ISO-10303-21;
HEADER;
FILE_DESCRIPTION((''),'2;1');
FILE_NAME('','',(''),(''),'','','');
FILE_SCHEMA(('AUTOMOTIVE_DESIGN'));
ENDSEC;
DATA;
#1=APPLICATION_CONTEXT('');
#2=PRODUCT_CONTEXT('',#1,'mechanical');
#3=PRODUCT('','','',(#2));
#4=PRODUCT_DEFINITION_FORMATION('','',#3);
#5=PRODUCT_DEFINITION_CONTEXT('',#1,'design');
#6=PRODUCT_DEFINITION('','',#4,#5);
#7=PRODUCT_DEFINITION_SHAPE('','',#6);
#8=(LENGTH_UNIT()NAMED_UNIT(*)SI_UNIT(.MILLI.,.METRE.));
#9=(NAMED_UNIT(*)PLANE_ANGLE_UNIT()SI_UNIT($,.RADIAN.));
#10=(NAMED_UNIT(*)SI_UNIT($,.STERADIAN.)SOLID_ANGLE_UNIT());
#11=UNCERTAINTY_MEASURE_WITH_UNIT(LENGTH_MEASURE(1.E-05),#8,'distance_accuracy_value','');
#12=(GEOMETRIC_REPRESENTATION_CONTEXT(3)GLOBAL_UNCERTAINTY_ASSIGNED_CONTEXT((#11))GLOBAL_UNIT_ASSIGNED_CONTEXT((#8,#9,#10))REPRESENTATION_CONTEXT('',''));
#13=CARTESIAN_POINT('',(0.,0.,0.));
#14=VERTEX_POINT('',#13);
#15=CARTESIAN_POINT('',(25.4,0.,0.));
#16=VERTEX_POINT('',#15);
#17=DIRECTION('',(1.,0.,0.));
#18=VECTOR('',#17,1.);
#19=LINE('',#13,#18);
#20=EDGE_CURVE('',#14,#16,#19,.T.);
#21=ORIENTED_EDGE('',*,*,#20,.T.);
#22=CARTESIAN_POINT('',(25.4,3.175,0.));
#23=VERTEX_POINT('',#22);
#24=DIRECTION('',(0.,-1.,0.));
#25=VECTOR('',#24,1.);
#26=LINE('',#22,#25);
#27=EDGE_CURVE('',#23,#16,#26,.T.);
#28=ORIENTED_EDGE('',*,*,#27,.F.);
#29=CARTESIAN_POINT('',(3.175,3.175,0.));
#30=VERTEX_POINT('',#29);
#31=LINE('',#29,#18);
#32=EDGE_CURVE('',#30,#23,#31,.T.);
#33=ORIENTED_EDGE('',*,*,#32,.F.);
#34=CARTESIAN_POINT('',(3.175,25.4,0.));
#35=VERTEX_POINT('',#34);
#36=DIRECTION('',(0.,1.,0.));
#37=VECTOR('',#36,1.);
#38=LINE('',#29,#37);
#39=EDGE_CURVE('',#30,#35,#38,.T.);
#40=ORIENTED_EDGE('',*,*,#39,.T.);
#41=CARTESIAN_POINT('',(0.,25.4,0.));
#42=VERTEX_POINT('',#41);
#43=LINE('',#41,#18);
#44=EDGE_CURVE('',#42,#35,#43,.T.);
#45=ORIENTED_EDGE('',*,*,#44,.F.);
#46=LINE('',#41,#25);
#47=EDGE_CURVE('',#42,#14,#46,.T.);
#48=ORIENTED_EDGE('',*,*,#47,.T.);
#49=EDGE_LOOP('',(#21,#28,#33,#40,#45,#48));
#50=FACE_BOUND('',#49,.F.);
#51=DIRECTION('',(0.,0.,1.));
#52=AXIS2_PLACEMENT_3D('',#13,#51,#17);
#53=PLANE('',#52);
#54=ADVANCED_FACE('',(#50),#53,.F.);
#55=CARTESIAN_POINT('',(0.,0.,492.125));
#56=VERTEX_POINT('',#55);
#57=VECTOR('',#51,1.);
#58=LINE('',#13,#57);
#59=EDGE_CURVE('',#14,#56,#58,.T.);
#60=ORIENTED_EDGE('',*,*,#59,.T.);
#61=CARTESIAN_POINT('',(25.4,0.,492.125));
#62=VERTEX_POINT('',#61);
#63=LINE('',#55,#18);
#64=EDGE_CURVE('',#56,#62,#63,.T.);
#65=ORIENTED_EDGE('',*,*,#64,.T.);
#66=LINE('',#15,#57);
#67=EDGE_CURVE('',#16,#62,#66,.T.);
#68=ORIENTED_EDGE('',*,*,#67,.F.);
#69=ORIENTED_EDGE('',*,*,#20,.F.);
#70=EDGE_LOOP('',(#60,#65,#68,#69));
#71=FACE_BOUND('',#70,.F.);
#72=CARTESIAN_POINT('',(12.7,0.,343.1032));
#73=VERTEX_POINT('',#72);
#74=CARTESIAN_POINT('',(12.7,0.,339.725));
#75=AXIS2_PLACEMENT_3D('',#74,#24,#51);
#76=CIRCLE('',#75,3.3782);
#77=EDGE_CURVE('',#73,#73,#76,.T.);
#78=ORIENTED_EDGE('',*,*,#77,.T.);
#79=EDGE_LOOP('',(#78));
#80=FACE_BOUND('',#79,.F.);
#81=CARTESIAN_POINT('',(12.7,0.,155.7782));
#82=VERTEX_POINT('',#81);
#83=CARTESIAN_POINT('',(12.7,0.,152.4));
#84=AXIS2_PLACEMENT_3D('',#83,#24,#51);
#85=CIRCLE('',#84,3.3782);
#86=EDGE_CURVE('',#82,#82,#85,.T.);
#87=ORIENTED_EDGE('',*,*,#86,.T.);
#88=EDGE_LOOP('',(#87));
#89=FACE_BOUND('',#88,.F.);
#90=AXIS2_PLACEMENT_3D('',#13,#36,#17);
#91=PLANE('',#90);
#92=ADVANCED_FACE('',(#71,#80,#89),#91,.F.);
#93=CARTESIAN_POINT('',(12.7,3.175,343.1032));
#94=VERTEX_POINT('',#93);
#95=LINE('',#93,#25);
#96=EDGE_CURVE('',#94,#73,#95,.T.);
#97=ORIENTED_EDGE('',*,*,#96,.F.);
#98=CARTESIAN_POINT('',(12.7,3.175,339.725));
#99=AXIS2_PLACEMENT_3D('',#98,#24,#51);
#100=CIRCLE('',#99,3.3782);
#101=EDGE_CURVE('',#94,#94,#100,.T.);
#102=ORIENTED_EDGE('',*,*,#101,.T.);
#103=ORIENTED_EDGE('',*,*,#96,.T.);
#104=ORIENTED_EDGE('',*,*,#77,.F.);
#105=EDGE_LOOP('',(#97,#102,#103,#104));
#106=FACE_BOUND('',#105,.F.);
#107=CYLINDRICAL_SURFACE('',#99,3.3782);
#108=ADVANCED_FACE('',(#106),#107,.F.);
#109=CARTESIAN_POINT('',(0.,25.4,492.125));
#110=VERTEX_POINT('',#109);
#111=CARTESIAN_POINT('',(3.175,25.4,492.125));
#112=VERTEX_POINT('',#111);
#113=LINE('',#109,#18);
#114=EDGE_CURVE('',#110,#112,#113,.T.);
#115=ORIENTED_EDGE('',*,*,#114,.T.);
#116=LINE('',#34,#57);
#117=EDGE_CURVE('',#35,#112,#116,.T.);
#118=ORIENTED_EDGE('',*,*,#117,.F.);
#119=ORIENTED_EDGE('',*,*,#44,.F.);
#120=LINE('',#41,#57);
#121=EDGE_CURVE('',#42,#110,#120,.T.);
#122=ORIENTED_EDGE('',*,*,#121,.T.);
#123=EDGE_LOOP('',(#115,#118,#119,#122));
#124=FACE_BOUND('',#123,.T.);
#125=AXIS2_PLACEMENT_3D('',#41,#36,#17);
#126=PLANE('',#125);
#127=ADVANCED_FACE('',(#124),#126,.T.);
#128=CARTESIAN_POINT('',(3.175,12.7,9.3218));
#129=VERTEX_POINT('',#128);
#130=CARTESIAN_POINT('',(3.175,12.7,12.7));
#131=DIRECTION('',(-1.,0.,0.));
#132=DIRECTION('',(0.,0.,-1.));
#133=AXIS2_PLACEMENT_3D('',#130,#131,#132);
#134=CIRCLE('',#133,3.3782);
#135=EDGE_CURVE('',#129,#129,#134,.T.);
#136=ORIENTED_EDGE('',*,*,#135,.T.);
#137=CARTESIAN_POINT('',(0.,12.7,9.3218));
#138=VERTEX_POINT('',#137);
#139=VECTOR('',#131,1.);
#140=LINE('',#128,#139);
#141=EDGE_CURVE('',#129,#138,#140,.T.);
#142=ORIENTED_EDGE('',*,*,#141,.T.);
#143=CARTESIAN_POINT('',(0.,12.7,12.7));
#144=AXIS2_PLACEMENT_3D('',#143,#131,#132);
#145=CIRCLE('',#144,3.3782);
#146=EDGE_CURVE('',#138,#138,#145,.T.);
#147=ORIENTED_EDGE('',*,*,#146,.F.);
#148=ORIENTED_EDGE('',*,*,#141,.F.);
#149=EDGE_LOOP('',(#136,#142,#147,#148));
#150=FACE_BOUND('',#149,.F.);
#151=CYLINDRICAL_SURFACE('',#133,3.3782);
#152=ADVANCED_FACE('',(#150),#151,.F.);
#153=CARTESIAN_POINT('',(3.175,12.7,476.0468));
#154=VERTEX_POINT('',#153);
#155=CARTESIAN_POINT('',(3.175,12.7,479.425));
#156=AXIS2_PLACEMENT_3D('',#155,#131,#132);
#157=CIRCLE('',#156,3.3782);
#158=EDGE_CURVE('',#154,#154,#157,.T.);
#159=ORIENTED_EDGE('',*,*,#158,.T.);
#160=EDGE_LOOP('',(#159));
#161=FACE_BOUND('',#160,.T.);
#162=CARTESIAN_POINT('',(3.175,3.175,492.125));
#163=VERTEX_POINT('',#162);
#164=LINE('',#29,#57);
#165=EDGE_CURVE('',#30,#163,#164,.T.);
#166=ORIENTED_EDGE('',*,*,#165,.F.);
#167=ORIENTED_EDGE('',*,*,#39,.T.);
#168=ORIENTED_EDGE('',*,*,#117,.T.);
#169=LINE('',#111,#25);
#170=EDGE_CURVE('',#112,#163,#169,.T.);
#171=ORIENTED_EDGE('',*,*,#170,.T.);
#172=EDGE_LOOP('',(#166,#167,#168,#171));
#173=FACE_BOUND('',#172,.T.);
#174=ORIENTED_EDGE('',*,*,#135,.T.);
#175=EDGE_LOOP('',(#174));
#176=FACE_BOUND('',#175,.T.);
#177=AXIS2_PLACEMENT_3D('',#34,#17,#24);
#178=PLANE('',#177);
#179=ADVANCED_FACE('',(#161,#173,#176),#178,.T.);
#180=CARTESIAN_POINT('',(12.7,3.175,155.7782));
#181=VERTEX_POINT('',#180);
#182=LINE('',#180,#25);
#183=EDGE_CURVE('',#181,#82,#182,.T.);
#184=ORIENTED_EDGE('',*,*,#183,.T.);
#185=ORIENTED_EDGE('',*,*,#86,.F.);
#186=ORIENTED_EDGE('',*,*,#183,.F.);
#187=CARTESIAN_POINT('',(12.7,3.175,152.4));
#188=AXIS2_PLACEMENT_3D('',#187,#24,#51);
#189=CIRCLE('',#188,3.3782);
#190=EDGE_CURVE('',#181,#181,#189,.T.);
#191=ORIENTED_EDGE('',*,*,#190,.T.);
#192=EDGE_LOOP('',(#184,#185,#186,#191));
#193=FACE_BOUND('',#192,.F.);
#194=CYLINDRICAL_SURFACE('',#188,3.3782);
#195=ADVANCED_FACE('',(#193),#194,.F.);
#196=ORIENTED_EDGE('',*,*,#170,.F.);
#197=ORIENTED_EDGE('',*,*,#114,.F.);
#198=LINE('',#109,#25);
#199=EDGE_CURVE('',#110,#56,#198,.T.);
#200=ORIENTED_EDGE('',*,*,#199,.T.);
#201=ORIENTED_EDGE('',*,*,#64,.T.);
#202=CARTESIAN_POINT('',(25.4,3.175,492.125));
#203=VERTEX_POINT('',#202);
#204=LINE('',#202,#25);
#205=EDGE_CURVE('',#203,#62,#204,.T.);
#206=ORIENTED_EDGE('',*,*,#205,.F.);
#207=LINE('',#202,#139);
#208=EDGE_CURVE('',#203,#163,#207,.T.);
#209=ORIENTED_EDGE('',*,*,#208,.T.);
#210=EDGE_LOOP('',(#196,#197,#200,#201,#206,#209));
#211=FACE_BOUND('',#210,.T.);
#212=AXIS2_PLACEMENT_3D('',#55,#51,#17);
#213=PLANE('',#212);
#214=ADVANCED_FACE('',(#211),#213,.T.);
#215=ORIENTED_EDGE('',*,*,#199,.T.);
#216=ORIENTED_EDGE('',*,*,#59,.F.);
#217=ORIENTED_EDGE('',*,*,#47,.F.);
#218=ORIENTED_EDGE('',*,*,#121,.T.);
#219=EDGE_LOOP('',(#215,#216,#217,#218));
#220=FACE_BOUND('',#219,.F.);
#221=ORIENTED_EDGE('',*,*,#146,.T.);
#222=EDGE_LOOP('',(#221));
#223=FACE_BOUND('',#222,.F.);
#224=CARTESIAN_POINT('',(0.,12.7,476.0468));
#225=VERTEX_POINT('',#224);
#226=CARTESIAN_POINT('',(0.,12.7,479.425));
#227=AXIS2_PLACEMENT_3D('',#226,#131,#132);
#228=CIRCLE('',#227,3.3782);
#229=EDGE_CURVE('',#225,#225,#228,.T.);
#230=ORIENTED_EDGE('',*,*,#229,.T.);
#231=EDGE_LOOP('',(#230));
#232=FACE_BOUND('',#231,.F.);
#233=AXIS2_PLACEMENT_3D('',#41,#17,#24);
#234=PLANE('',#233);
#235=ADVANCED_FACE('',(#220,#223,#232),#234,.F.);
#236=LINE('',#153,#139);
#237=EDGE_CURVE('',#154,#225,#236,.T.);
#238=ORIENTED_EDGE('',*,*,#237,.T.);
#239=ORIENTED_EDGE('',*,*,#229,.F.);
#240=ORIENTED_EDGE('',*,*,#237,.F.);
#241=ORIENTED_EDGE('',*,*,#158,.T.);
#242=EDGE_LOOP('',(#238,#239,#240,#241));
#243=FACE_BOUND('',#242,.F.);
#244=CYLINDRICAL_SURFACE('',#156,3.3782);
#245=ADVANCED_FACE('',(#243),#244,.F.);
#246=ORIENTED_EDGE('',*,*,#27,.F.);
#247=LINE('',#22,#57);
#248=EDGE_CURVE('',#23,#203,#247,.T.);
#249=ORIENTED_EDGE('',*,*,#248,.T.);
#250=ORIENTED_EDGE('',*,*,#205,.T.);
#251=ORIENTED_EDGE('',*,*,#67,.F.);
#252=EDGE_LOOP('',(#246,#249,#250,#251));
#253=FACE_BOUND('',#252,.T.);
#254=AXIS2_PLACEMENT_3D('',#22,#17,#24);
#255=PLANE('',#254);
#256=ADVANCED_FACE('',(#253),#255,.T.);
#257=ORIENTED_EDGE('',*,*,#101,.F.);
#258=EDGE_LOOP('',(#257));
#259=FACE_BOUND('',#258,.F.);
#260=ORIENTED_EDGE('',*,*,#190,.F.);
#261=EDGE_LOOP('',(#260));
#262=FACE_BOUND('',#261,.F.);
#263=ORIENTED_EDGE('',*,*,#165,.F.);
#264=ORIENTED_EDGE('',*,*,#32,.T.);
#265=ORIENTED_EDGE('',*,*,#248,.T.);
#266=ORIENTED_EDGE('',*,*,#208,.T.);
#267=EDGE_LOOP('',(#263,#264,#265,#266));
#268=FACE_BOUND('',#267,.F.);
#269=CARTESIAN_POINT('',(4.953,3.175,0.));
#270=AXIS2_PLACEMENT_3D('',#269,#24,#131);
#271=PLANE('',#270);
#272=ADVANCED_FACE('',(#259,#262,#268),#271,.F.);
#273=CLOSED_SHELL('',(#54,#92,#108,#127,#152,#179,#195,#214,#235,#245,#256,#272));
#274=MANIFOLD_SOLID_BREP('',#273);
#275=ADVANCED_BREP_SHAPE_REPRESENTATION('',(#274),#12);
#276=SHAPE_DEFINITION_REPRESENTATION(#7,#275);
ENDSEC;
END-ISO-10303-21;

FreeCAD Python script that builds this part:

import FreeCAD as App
import Part
import Sketcher

V = App.Vector
Q = App.Units.Quantity

doc = App.newDocument("Part")
body = doc.addObject("PartDesign::Body", "Body")

# Sketch on XY plane
sketch1 = body.newObject("Sketcher::SketchObject", "Sketch")
sketch1.AttachmentSupport = (doc.getObject("XY_Plane"), [""])
sketch1.MapMode = "FlatFace"
sketch1.addGeometry(Part.LineSegment(V(3.2, 25.4, 0), V(0, 25.4, 0)), False)
sketch1.addGeometry(Part.LineSegment(V(0, 25.4, 0), V(0, 0, 0)), False)
sketch1.addGeometry(Part.LineSegment(V(0, 0, 0), V(25.4, 0, 0)), False)
sketch1.addGeometry(Part.LineSegment(V(25.4, 0, 0), V(25.4, 3.2, 0)), False)
sketch1.addGeometry(Part.LineSegment(V(25.4, 3.2, 0), V(3.2, 3.2, 0)), False)
sketch1.addGeometry(Part.LineSegment(V(3.2, 3.2, 0), V(3.2, 25.4, 0)), False)
sketch1.addConstraint(Sketcher.Constraint("Coincident", 0, 2, 1, 1))
sketch1.addConstraint(Sketcher.Constraint("Coincident", 1, 2, 2, 1))
sketch1.addConstraint(Sketcher.Constraint("Coincident", 2, 2, 3, 1))
sketch1.addConstraint(Sketcher.Constraint("Coincident", 3, 2, 4, 1))
sketch1.addConstraint(Sketcher.Constraint("Coincident", 4, 2, 5, 1))
sketch1.addConstraint(Sketcher.Constraint("Coincident", 5, 2, 0, 1))
sketch1.addConstraint(Sketcher.Constraint("Horizontal", 0))
sketch1.addConstraint(Sketcher.Constraint("Vertical", 1))
sketch1.addConstraint(Sketcher.Constraint("Horizontal", 2))
sketch1.addConstraint(Sketcher.Constraint("Vertical", 3))
sketch1.addConstraint(Sketcher.Constraint("Horizontal", 4))
sketch1.addConstraint(Sketcher.Constraint("Vertical", 5))
sketch1.addConstraint(Sketcher.Constraint("Coincident", 1, 2, -1, 1))
sketch1.addConstraint(Sketcher.Constraint("Equal", 2, 1))
sketch1.addConstraint(Sketcher.Constraint("Equal", 0, 3))
sketch1.addConstraint(Sketcher.Constraint("DistanceX", 2, 1, 2, 2, Q("1 in")))
sketch1.addConstraint(Sketcher.Constraint("DistanceX", 0, 2, 0, 1, Q("0.125 in")))
pad1 = body.newObject("PartDesign::Pad", "Pad")
pad1.Profile = sketch1
pad1.Length = Q("19.375 in")

# Sketch on YZ plane
sketch2 = body.newObject("Sketcher::SketchObject", "Sketch001")
sketch2.AttachmentSupport = (doc.getObject("YZ_Plane"), [""])
sketch2.MapMode = "FlatFace"
sketch2.AttachmentOffset = App.Placement(V(0, 0, 0.125 * 25.4), App.Rotation())
sketch2.addGeometry(Part.Circle(V(12.7, 479.4, 0), V(0, 0, 1), 3.4), False)
sketch2.addGeometry(Part.Circle(V(12.7, 12.7, 0), V(0, 0, 1), 3.4), False)
sketch2.addConstraint(Sketcher.Constraint("Equal", 0, 1))
sketch2.addConstraint(Sketcher.Constraint("Vertical", 0, 3, 1, 3))
sketch2.addConstraint(Sketcher.Constraint("Diameter", 0, Q("0.266 in")))
sketch2.addConstraint(Sketcher.Constraint("DistanceX", -1, 1, 0, 3, Q("0.5 in")))
sketch2.addConstraint(Sketcher.Constraint("DistanceY", -1, 1, 1, 3, Q("0.5 in")))
sketch2.addConstraint(Sketcher.Constraint("DistanceY", -1, 1, 0, 3, Q("18.875 in")))
doc.recompute()
hole = body.newObject("PartDesign::Hole", "Hole")
hole.Profile = sketch2
hole.ThreadType = "None"
hole.Diameter = Q("0.266 in")
hole.DepthType = "Dimension"
hole.Depth = Q("1 in")
hole.DrillPoint = "Angled"
hole.DrillPointAngle = 118

# Sketch on XZ plane
sketch3 = body.newObject("Sketcher::SketchObject", "Sketch002")
sketch3.AttachmentSupport = (doc.getObject("XZ_Plane"), [""])
sketch3.MapMode = "FlatFace"
sketch3.AttachmentOffset = App.Placement(V(0, 0, -0.125 * 25.4), App.Rotation())
sketch3.addGeometry(Part.Circle(V(12.7, 339.7, 0), V(0, 0, 1), 3.4), False)
sketch3.addConstraint(Sketcher.Constraint("Diameter", 0, Q("0.266 in")))
sketch3.addConstraint(Sketcher.Constraint("DistanceX", -1, 1, 0, 3, Q("0.5 in")))
sketch3.addConstraint(Sketcher.Constraint("DistanceY", -1, 1, 0, 3, Q("13.375 in")))
doc.recompute()
hole2 = body.newObject("PartDesign::Hole", "Hole001")
hole2.Profile = sketch3
hole2.ThreadType = "None"
hole2.Diameter = Q("0.266 in")
hole2.DepthType = "Dimension"
hole2.Depth = Q("1 in")
hole2.DrillPoint = "Angled"
hole2.DrillPointAngle = 118
hole2.Reversed = True

# Sketch on XZ plane
sketch4 = body.newObject("Sketcher::SketchObject", "Sketch003")
sketch4.AttachmentSupport = (doc.getObject("XZ_Plane"), [""])
sketch4.MapMode = "FlatFace"
sketch4.AttachmentOffset = App.Placement(V(0, 0, -0.125 * 25.4), App.Rotation())
sketch4.addGeometry(Part.Circle(V(12.7, 152.4, 0), V(0, 0, 1), 3.4), False)
sketch4.addConstraint(Sketcher.Constraint("Diameter", 0, Q("0.266 in")))
sketch4.addConstraint(Sketcher.Constraint("DistanceY", -1, 1, 0, 3, Q("6 in")))
sketch4.addConstraint(Sketcher.Constraint("DistanceX", -1, 1, 0, 3, Q("0.5 in")))
doc.recompute()
hole3 = body.newObject("PartDesign::Hole", "Hole002")
hole3.Profile = sketch4
hole3.ThreadType = "None"
hole3.Diameter = Q("0.266 in")
hole3.DepthType = "Dimension"
hole3.Depth = Q("1 in")
hole3.DrillPoint = "Angled"
hole3.DrillPointAngle = 118
hole3.Reversed = True

doc.recompute()
